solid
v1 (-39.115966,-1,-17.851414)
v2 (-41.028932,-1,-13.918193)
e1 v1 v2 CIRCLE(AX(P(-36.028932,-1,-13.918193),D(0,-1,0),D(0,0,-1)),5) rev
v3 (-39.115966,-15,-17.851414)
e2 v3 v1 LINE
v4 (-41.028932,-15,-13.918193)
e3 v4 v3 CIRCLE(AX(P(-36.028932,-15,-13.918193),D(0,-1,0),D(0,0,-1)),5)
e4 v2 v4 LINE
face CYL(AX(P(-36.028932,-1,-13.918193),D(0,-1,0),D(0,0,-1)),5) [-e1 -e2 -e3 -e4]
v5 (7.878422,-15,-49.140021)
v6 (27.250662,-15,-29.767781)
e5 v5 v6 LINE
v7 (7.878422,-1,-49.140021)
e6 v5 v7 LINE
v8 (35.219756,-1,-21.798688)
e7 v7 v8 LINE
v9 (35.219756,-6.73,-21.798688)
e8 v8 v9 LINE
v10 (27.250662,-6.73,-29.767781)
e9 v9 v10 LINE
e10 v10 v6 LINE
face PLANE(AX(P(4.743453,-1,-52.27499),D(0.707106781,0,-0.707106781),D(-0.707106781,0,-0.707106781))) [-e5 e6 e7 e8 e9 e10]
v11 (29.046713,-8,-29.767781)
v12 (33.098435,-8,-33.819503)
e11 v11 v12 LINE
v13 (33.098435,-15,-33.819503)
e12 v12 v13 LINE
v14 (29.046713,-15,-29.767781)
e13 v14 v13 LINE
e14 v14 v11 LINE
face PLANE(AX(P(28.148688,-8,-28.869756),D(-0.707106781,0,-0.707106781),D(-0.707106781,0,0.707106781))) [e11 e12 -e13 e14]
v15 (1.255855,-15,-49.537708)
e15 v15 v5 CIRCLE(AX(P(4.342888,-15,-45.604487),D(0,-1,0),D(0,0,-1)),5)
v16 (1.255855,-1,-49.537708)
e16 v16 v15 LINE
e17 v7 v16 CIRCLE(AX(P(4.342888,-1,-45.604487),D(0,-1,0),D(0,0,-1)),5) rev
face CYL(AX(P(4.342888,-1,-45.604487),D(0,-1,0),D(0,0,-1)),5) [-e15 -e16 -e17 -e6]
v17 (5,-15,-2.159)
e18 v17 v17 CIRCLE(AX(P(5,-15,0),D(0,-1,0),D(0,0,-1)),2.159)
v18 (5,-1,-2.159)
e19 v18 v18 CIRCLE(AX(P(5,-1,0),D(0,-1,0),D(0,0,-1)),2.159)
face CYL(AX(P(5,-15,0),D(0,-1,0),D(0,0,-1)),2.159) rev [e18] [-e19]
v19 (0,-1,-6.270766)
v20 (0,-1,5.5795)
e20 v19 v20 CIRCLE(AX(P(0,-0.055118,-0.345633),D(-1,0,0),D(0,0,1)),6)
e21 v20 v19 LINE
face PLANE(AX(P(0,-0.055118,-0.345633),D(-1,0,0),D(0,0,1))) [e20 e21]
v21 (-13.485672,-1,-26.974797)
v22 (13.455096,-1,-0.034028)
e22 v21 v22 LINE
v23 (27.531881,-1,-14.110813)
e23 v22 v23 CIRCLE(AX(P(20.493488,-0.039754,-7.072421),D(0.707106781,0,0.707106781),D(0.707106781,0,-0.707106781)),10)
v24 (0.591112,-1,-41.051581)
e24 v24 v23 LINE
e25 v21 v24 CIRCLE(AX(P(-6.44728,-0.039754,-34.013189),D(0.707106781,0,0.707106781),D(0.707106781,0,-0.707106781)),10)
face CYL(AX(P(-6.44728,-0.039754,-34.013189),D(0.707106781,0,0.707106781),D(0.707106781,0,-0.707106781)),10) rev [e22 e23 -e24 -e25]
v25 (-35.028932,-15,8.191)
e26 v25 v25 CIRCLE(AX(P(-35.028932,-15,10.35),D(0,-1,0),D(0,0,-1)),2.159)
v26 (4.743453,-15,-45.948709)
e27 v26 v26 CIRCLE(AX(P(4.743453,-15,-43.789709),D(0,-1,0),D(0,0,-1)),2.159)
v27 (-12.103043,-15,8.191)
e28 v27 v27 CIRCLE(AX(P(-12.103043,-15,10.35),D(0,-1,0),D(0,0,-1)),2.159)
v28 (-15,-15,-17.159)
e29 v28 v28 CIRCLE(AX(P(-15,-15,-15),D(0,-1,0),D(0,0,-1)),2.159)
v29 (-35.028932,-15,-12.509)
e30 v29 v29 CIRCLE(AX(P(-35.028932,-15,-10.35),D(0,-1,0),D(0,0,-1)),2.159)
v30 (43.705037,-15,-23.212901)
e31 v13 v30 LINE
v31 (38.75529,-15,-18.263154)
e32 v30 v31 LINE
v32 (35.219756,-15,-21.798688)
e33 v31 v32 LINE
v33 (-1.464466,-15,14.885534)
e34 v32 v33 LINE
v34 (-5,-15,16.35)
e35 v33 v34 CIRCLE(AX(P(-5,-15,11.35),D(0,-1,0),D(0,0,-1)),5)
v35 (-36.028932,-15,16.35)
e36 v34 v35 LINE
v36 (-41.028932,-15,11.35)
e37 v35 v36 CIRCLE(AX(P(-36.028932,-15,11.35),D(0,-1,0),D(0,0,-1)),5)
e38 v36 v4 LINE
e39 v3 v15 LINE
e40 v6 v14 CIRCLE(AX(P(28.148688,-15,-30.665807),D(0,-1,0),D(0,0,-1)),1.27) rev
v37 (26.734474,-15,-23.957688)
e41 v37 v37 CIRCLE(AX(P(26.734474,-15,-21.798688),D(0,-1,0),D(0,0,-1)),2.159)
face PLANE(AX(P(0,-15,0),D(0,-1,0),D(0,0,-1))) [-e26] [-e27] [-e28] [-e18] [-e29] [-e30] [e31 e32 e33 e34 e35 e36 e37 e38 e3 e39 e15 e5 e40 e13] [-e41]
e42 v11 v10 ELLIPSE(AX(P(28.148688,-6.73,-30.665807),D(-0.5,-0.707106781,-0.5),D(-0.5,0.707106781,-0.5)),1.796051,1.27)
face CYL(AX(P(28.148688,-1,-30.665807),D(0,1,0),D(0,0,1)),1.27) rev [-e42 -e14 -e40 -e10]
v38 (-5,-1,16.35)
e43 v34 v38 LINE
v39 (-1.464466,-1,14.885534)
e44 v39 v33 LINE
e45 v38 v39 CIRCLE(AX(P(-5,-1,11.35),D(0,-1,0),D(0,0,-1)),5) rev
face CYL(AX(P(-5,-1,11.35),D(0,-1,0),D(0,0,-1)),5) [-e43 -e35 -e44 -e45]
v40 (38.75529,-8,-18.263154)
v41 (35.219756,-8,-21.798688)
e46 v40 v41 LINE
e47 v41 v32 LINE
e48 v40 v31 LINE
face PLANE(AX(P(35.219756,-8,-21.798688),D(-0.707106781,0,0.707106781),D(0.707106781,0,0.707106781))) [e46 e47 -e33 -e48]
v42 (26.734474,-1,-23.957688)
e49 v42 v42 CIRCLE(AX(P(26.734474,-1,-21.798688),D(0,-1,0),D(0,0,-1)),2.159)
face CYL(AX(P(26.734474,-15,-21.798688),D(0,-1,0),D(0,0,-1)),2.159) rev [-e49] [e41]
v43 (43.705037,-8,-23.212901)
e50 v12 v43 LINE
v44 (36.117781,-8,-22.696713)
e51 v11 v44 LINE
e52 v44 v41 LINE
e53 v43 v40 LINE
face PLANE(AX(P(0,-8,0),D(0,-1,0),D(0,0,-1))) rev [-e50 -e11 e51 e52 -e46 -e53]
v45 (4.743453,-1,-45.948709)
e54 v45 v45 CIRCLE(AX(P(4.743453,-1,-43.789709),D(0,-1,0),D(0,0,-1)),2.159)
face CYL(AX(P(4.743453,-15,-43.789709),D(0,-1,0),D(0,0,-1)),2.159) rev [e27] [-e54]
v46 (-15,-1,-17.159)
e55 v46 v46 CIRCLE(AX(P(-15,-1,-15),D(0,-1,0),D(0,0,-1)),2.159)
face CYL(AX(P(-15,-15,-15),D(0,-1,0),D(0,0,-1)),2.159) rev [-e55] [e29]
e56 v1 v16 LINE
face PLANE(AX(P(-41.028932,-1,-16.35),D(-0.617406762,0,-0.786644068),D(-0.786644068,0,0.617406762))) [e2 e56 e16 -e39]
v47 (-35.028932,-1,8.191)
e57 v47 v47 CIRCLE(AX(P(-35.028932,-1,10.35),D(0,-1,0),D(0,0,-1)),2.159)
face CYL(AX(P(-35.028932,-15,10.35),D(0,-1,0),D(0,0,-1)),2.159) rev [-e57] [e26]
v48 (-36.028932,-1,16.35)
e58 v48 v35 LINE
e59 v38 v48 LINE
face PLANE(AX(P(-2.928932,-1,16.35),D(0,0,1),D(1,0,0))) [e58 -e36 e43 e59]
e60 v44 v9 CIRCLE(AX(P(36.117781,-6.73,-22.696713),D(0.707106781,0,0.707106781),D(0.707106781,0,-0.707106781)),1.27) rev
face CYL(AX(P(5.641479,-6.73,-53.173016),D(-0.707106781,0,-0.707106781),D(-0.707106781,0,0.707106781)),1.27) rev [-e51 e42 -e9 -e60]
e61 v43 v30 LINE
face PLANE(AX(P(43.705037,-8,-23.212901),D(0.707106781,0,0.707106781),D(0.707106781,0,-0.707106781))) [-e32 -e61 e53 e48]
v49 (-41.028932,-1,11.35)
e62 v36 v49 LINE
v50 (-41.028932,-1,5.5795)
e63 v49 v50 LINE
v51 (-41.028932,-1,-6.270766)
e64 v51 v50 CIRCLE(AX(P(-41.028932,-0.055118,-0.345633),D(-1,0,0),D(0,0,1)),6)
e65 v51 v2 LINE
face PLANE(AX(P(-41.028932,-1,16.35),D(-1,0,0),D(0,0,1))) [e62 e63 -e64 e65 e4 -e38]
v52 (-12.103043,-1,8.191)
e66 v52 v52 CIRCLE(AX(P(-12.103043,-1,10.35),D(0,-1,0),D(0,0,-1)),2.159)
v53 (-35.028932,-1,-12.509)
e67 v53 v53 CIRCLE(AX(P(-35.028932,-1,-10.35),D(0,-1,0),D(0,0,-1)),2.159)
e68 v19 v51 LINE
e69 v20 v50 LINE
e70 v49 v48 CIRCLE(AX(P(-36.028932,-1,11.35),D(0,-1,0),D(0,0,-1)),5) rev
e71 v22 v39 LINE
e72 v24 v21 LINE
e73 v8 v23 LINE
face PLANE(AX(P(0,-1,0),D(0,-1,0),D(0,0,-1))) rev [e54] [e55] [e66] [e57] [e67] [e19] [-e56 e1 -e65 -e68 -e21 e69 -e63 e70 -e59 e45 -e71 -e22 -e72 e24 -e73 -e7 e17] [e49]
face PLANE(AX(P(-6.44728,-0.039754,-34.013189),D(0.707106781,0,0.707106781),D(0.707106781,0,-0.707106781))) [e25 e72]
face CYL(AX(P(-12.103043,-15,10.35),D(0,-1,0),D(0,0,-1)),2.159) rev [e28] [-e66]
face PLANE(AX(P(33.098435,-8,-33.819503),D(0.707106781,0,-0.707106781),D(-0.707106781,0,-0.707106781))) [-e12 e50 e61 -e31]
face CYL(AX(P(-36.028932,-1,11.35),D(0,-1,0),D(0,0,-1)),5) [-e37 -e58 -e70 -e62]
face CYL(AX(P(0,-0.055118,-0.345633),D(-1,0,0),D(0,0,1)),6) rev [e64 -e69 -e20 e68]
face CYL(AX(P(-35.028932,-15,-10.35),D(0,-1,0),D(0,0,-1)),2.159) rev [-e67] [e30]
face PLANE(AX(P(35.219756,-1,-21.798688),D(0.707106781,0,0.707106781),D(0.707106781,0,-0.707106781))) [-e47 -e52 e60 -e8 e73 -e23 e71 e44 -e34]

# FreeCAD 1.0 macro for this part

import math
import FreeCAD as App
import Part
import Sketcher
from FreeCAD import Vector
Q = App.Units.Quantity


def edges_at(feature, points):
    """Names of the edges that pass closest to the given points."""
    edges = feature.Shape.Edges
    near = lambda p: min(range(len(edges)), key=lambda i: edges[i].distToShape(Part.Vertex(*p))[0])
    return sorted({f"Edge{near(p) + 1}" for p in points})

doc = App.newDocument("Part")
body = doc.addObject("PartDesign::Body", "Body")

sketch1 = body.newObject("Sketcher::SketchObject", "Sketch")
sketch1.AttachmentSupport = (doc.getObject("XZ_Plane"), [""])
sketch1.MapMode = "FlatFace"
sketch1.AttachmentOffset = App.Placement(Vector(0, 0, 15), App.Rotation())
sketch1.addGeometry(Part.LineSegment(Vector(4.743453, -52.27499, 0), Vector(35.219756, -21.798688, 0)), False)
sketch1.addGeometry(Part.LineSegment(Vector(35.219756, -21.798688, 0), Vector(-2.928932, 16.35, 0)), False)
sketch1.addGeometry(Part.LineSegment(Vector(-2.928932, 16.35, 0), Vector(-41.028932, 16.35, 0)), False)
sketch1.addGeometry(Part.LineSegment(Vector(-41.028932, 16.35, 0), Vector(-41.028932, -16.35, 0)), False)
sketch1.addGeometry(Part.LineSegment(Vector(-41.028932, -16.35, 0), Vector(4.743453, -52.27499, 0)), False)
sketch1.addConstraint(Sketcher.Constraint("Coincident", 0, 2, 1, 1))
sketch1.addConstraint(Sketcher.Constraint("Coincident", 1, 2, 2, 1))
sketch1.addConstraint(Sketcher.Constraint("Coincident", 2, 2, 3, 1))
sketch1.addConstraint(Sketcher.Constraint("Coincident", 3, 2, 4, 1))
sketch1.addConstraint(Sketcher.Constraint("Coincident", 4, 2, 0, 1))
sketch1.addConstraint(Sketcher.Constraint("Horizontal", 2))
sketch1.addConstraint(Sketcher.Constraint("Vertical", 3))
sketch1.addConstraint(Sketcher.Constraint("Perpendicular", 0, 1))
sketch1.addConstraint(Sketcher.Constraint("Angle", 0, Q("44.999999 deg")))
sketch1.addConstraint(Sketcher.Constraint("DistanceX", 2, 2, 2, 1, 38.1))
sketch1.addConstraint(Sketcher.Constraint("DistanceY", 3, 2, 3, 1, 32.7))
sketch1.addConstraint(Sketcher.Constraint("Distance", 0, 43.1))
sketch1.addConstraint(Sketcher.Constraint("DistanceY", -1, 1, 1, 2, 16.35))
sketch1.addConstraint(Sketcher.Constraint("Distance", 1, 53.950392))
sketch1.addConstraint(Sketcher.Constraint("DistanceX", 2, 2, -1, 1, 41.028932))
pad1 = body.newObject("PartDesign::Pad", "Pad")
pad1.Profile = sketch1
pad1.Length = 14
pad1.Reversed = True

sketch2 = body.newObject("Sketcher::SketchObject", "Sketch001")
sketch2.AttachmentSupport = (doc.getObject("XZ_Plane"), [""])
sketch2.MapMode = "FlatFace"
sketch2.AttachmentOffset = App.Placement(Vector(0, 0, 15), App.Rotation())
sketch2.addGeometry(Part.LineSegment(Vector(43.705037, -23.212901, 0), Vector(38.75529, -18.263154, 0)), False)
sketch2.addGeometry(Part.LineSegment(Vector(38.75529, -18.263154, 0), Vector(28.148688, -28.869756, 0)), False)
sketch2.addGeometry(Part.LineSegment(Vector(28.148688, -28.869756, 0), Vector(33.098435, -33.819503, 0)), False)
sketch2.addGeometry(Part.LineSegment(Vector(33.098435, -33.819503, 0), Vector(43.705037, -23.212901, 0)), False)
sketch2.addConstraint(Sketcher.Constraint("Coincident", 0, 2, 1, 1))
sketch2.addConstraint(Sketcher.Constraint("Coincident", 1, 2, 2, 1))
sketch2.addConstraint(Sketcher.Constraint("Coincident", 2, 2, 3, 1))
sketch2.addConstraint(Sketcher.Constraint("Coincident", 3, 2, 0, 1))
sketch2.addConstraint(Sketcher.Constraint("Perpendicular", 0, 1))
sketch2.addConstraint(Sketcher.Constraint("Perpendicular", 1, 2))
sketch2.addConstraint(Sketcher.Constraint("Perpendicular", 2, 3))
sketch2.addConstraint(Sketcher.Constraint("Angle", 0, Q("135 deg")))
sketch2.addConstraint(Sketcher.Constraint("Distance", 0, 6.999999))
sketch2.addConstraint(Sketcher.Constraint("Distance", 1, 15.0))
sketch2.addConstraint(Sketcher.Constraint("DistanceY", 3, 2, -1, 1, 23.212901))
sketch2.addConstraint(Sketcher.Constraint("DistanceX", -1, 1, 0, 2, 38.75529))
pad2 = body.newObject("PartDesign::Pad", "Pad001")
pad2.Profile = sketch2
pad2.Length = 7
pad2.Reversed = True

sketch3 = body.newObject("Sketcher::SketchObject", "Sketch002")
sketch3.AttachmentSupport = (doc.getObject("YZ_Plane"), [""])
sketch3.MapMode = "FlatFace"
sketch3.AttachmentOffset = App.Placement(Vector(0, 0, -41.028932), App.Rotation())
sketch3.addGeometry(Part.LineSegment(Vector(-1, 5.5795, 0), Vector(-1, -6.270766, 0)), False)
sketch3.addGeometry(Part.ArcOfCircle(Part.Circle(Vector(-0.055118, -0.345633, 0), Vector(0, 0, 1), 6), math.radians(99.060678), math.radians(260.939322)), False)
sketch3.addConstraint(Sketcher.Constraint("Coincident", 0, 1, 1, 1))
sketch3.addConstraint(Sketcher.Constraint("Coincident", 1, 2, 0, 2))
sketch3.addConstraint(Sketcher.Constraint("Vertical", 0))
sketch3.addConstraint(Sketcher.Constraint("Radius", 1, 6.0))
sketch3.addConstraint(Sketcher.Constraint("DistanceX", 0, 1, -1, 1, 1.0))
sketch3.addConstraint(Sketcher.Constraint("DistanceY", -1, 1, 0, 1, 5.5795))
sketch3.addConstraint(Sketcher.Constraint("DistanceY", 0, 2, 0, 1, 11.850266))
pocket1 = body.newObject("PartDesign::Pocket", "Pocket")
pocket1.Profile = sketch3
pocket1.Length = 41.028932
pocket1.Reversed = True

sketch4 = body.newObject("Sketcher::SketchObject", "Sketch003")
sketch4.Placement = App.Placement(Vector(6.710534, 0, 6.710534), App.Rotation(Vector(0.707106781, 0, -0.707106781), Vector(0, 0.999999999, 0), Vector(0.707106781, 0, 0.707106781), "ZXY"))
sketch4.addGeometry(Part.LineSegment(Vector(29.445831, -1, 0), Vector(9.538252, -1, 0)), False)
sketch4.addGeometry(Part.ArcOfCircle(Part.Circle(Vector(19.492041, -0.039754, 0), Vector(0, 0, 1), 10), math.radians(-174.489706), math.radians(-5.510294)), False)
sketch4.addConstraint(Sketcher.Constraint("Coincident", 0, 1, 1, 2))
sketch4.addConstraint(Sketcher.Constraint("Coincident", 1, 1, 0, 2))
sketch4.addConstraint(Sketcher.Constraint("Horizontal", 0))
sketch4.addConstraint(Sketcher.Constraint("Radius", 1, 10.0))
sketch4.addConstraint(Sketcher.Constraint("DistanceY", 0, 1, -1, 1, 1.0))
sketch4.addConstraint(Sketcher.Constraint("DistanceX", 0, 2, 0, 1, 19.907579))
sketch4.addConstraint(Sketcher.Constraint("DistanceX", -1, 1, 1, 3, 19.492041))
pocket2 = body.newObject("PartDesign::Pocket", "Pocket001")
pocket2.Profile = sketch4
pocket2.Length = 38.1

sketch5 = body.newObject("Sketcher::SketchObject", "Sketch004")
sketch5.AttachmentSupport = (doc.getObject("XZ_Plane"), [""])
sketch5.MapMode = "FlatFace"
sketch5.AttachmentOffset = App.Placement(Vector(0, 0, 15), App.Rotation())
sketch5.addGeometry(Part.Circle(Vector(-35.028932, 10.35, 0), Vector(0, 0, 1), 2.159), False)
sketch5.addGeometry(Part.Circle(Vector(5, 0, 0), Vector(0, 0, 1), 2.159), False)
sketch5.addGeometry(Part.Circle(Vector(-15, -15, 0), Vector(0, 0, 1), 2.159), False)
sketch5.addGeometry(Part.Circle(Vector(-12.103043, 10.35, 0), Vector(0, 0, 1), 2.159), False)
sketch5.addGeometry(Part.Circle(Vector(-35.028932, -10.35, 0), Vector(0, 0, 1), 2.159), False)
sketch5.addGeometry(Part.Circle(Vector(4.743453, -43.789709, 0), Vector(0, 0, 1), 2.159), False)
sketch5.addGeometry(Part.Circle(Vector(26.734474, -21.798688, 0), Vector(0, 0, 1), 2.159), False)
sketch5.addConstraint(Sketcher.Constraint("Equal", 0, 1))
sketch5.addConstraint(Sketcher.Constraint("Equal", 1, 2))
sketch5.addConstraint(Sketcher.Constraint("Equal", 2, 3))
sketch5.addConstraint(Sketcher.Constraint("Equal", 3, 4))
sketch5.addConstraint(Sketcher.Constraint("Equal", 4, 5))
sketch5.addConstraint(Sketcher.Constraint("Equal", 5, 6))
sketch5.addConstraint(Sketcher.Constraint("Symmetric", 0, 3, 4, 3, -1))
sketch5.addConstraint(Sketcher.Constraint("PointOnObject", 1, 3, -1))
sketch5.addConstraint(Sketcher.Constraint("Horizontal", 0, 3, 3, 3))
sketch5.addConstraint(Sketcher.Constraint("Diameter", 0, 4.318))
sketch5.addConstraint(Sketcher.Constraint("DistanceX", -1, 1, 1, 3, 5.0))
sketch5.addConstraint(Sketcher.Constraint("DistanceX", 2, 3, -1, 1, 15.0))
sketch5.addConstraint(Sketcher.Constraint("DistanceY", 2, 3, -1, 1, 15.0))
sketch5.addConstraint(Sketcher.Constraint("DistanceY", 4, 3, 0, 3, 20.7))
sketch5.addConstraint(Sketcher.Constraint("DistanceX", 0, 3, -1, 1, 35.028932))
sketch5.addConstraint(Sketcher.Constraint("DistanceY", 5, 3, -1, 1, 43.789709))
sketch5.addConstraint(Sketcher.Constraint("DistanceX", 0, 3, 3, 3, 22.925889))
sketch5.addConstraint(Sketcher.Constraint("DistanceX", 5, 3, 6, 3, 21.991021))
sketch5.addConstraint(Sketcher.Constraint("DistanceY", 5, 3, 6, 3, 21.991021))
sketch5.addConstraint(Sketcher.Constraint("DistanceX", -1, 1, 5, 3, 4.743453))
doc.recompute()
hole = body.newObject("PartDesign::Hole", "Hole")
hole.Profile = sketch5
hole.ThreadType = "None"
hole.Diameter = 4.318
hole.DepthType = "Dimension"
hole.Depth = 14
hole.DrillPoint = "Flat"
doc.recompute()

fillet = body.newObject("PartDesign::Fillet", "Fillet")
fillet.Base = (hole, edges_at(hole, [
    (-41.029, -8, -16.35),
    (-41.029, -8, 16.35),
    (-2.929, -8, 16.35),
    (4.743, -8, -52.275),
]))
fillet.Radius = 5
doc.recompute()

fillet2 = body.newObject("PartDesign::Fillet", "Fillet001")
fillet2.Base = (fillet, edges_at(fillet, [(31.684, -8, -25.334)]))
fillet2.Radius = 1.27
doc.recompute()

fillet3 = body.newObject("PartDesign::Fillet", "Fillet002")
fillet3.Base = (fillet2, edges_at(fillet2, [(28.149, -11.5, -28.87)]))
fillet3.Radius = 1.27

doc.recompute()
